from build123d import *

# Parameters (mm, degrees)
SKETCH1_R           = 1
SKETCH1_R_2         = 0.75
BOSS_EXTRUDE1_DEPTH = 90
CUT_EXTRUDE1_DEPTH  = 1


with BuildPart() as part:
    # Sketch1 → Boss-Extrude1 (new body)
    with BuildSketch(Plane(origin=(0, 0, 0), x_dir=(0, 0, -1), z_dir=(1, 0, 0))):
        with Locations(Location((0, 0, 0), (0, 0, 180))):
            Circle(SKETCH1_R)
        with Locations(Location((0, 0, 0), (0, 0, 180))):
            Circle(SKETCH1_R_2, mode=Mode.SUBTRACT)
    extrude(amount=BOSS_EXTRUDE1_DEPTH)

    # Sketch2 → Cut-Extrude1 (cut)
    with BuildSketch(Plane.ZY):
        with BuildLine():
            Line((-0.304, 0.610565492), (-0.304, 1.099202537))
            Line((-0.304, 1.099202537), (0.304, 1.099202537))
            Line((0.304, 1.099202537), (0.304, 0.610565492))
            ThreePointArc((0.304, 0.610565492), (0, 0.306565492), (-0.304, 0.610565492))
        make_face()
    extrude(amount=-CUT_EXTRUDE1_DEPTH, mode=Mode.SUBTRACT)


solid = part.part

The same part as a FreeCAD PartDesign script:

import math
import FreeCAD as App
import Part
import Sketcher
from FreeCAD import Vector
Q = App.Units.Quantity

doc = App.newDocument("Part")
body = doc.addObject("PartDesign::Body", "Body")

sketch1 = doc.addObject("Sketcher::SketchObject", "Sketch")
body.addObject(sketch1)
sketch1.AttachmentSupport = (doc.YZ_Plane, [""])
sketch1.MapMode = "FlatFace"
sketch1.addGeometry([
    Part.Circle(Vector(0, 0, 0), Vector(0, 0, 1), 1),
    Part.Circle(Vector(0, 0, 0), Vector(0, 0, 1), 0.8),
], False)
sketch1.addConstraint([
    Sketcher.Constraint("Coincident", 0, 3, -1, 1),
    Sketcher.Constraint("Coincident", 1, 3, -1, 1),
    Sketcher.Constraint("Diameter", 0, Q("2 mm")),
    Sketcher.Constraint("Diameter", 1, Q("1.5 mm")),
])
pad1 = doc.addObject("PartDesign::Pad", "Pad")
body.addObject(pad1)
pad1.Profile = sketch1
pad1.Length = 90

sketch2 = doc.addObject("Sketcher::SketchObject", "Sketch001")
body.addObject(sketch2)
sketch2.AttachmentSupport = (doc.YZ_Plane, [""])
sketch2.MapMode = "FlatFace"
sketch2.addGeometry([
    Part.LineSegment(Vector(1.1, -0.3, 0), Vector(0.61, -0.3, 0)),
    Part.ArcOfCircle(Part.Circle(Vector(0.61, 0, 0), Vector(0, 0, 1), 0.3), math.radians(90), math.radians(270)),
    Part.LineSegment(Vector(0.61, 0.3, 0), Vector(1.1, 0.3, 0)),
    Part.LineSegment(Vector(1.1, 0.3, 0), Vector(1.1, -0.3, 0)),
], False)
sketch2.addConstraint([
    Sketcher.Constraint("Tangent", 0, 2, 1, 2),
    Sketcher.Constraint("Tangent", 1, 1, 2, 1),
    Sketcher.Constraint("Coincident", 2, 2, 3, 1),
    Sketcher.Constraint("Coincident", 3, 2, 0, 1),
    Sketcher.Constraint("Horizontal", 0),
    Sketcher.Constraint("Horizontal", 2),
    Sketcher.Constraint("Vertical", 3),
    Sketcher.Constraint("PointOnObject", 1, 3, -1),
    Sketcher.Constraint("Radius", 1, Q("0.304 mm")),
    Sketcher.Constraint("DistanceX", 0, 2, 0, 1, Q("0.488637 mm")),
    Sketcher.Constraint("DistanceX", -1, 1, 1, 3, Q("0.610565 mm")),
])
pocket1 = doc.addObject("PartDesign::Pocket", "Pocket")
body.addObject(pocket1)
pocket1.Profile = sketch2
pocket1.Length = 1
pocket1.Reversed = True

doc.recompute()
